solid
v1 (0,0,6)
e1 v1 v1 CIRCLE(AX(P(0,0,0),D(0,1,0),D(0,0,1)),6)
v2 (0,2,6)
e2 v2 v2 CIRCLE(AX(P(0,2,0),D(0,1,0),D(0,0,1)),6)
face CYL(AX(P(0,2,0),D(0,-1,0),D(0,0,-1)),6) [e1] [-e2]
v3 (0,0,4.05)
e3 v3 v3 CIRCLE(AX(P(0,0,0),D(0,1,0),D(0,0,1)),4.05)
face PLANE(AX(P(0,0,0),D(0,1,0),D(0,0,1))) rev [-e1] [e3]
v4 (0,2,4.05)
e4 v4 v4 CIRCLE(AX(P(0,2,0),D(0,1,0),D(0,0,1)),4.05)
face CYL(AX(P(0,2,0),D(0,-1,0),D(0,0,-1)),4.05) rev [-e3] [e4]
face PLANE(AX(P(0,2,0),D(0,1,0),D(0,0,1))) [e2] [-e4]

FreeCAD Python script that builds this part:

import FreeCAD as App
import Part
import Sketcher

doc = App.newDocument("Part")
body = doc.addObject("PartDesign::Body", "Body")

# Sketch on XZ plane
sketch1 = doc.addObject("Sketcher::SketchObject", "Sketch")
body.addObject(sketch1)
sketch1.AttachmentSupport = (doc.XZ_Plane, [""])
sketch1.MapMode = "FlatFace"
sketch1.addGeometry([
    Part.Circle(App.Vector(0, 0, 0), App.Vector(0, 0, 1), 6),
    Part.Circle(App.Vector(0, 0, 0), App.Vector(0, 0, 1), 4),
], False)
sketch1.addConstraint([
    Sketcher.Constraint("Coincident", 0, 3, -1, 1),
    Sketcher.Constraint("Coincident", 1, 3, -1, 1),
    Sketcher.Constraint("Diameter", 0, 12.0),
    Sketcher.Constraint("Diameter", 1, 8.1),
])
pad1 = doc.addObject("PartDesign::Pad", "Pad")
body.addObject(pad1)
pad1.Profile = sketch1
pad1.Length = 2
pad1.Reversed = True

doc.recompute()
